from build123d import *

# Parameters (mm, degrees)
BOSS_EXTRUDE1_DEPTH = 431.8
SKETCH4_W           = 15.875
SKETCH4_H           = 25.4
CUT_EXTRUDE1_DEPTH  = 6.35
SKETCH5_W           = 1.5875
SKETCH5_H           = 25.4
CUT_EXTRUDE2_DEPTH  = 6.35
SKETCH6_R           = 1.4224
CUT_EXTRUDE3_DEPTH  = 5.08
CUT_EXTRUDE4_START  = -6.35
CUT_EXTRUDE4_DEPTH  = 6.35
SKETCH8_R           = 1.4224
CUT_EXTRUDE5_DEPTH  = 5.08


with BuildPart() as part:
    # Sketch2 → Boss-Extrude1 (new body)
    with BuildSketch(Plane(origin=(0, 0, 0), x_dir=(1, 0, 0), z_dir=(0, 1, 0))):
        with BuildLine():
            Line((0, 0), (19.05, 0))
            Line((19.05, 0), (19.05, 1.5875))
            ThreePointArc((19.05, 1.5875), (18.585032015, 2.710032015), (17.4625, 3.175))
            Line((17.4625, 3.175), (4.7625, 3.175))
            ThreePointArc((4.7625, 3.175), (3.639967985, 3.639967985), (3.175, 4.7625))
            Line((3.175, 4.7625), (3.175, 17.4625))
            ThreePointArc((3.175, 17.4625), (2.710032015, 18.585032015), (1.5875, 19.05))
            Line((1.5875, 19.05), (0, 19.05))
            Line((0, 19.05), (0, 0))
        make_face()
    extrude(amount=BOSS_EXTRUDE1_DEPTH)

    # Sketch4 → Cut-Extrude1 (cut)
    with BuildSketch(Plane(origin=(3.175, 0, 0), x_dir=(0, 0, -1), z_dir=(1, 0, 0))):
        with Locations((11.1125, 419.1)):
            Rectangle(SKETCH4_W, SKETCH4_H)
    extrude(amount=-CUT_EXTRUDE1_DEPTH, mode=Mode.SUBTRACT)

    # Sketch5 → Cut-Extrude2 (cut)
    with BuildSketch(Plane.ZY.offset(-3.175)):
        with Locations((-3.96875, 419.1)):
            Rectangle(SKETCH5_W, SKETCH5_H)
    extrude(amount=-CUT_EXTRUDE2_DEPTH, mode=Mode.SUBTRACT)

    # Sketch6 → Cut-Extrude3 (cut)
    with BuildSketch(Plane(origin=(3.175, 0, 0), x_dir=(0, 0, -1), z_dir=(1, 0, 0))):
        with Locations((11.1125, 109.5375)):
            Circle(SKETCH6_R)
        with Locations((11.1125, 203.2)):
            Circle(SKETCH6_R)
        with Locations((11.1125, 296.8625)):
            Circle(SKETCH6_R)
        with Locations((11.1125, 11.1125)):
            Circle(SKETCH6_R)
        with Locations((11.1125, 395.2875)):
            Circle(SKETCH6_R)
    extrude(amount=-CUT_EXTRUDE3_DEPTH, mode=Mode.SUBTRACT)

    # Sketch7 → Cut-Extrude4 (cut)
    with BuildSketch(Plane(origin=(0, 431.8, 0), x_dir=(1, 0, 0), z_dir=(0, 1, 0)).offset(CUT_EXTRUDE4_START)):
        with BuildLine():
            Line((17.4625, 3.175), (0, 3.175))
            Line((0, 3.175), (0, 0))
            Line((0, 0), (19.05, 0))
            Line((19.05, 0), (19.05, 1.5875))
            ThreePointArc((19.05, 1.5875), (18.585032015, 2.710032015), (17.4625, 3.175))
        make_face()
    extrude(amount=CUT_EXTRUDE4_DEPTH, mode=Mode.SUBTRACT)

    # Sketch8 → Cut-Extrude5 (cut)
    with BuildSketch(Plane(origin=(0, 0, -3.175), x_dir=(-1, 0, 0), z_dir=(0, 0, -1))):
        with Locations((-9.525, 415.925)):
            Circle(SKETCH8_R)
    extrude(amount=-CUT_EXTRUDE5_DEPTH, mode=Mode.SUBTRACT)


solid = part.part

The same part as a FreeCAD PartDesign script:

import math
import FreeCAD as App
import Part
import Sketcher

V = App.Vector
Q = App.Units.Quantity

doc = App.newDocument("Part")
body = doc.addObject("PartDesign::Body", "Body")

# Sketch on XZ plane
sketch1 = doc.addObject("Sketcher::SketchObject", "Sketch")
body.addObject(sketch1)
sketch1.AttachmentSupport = (doc.XZ_Plane, [""])
sketch1.MapMode = "FlatFace"
sketch1.addGeometry([
    Part.LineSegment(V(0, 0, 0), V(19.1, 0, 0)),  # 0
    Part.LineSegment(V(19.1, 0, 0), V(19.1, -1.6, 0)),  # 1
    Part.ArcOfCircle(Part.Circle(V(17.5, -1.6, 0), V(0, 0, 1), 1.6), math.radians(-90), math.radians(0)),  # 2
    Part.LineSegment(V(17.5, -3.2, 0), V(4.8, -3.2, 0)),  # 3
    Part.ArcOfCircle(Part.Circle(V(4.8, -4.8, 0), V(0, 0, 1), 1.6), math.radians(90), math.radians(180)),  # 4
    Part.LineSegment(V(3.2, -4.8, 0), V(3.2, -17.5, 0)),  # 5
    Part.ArcOfCircle(Part.Circle(V(1.6, -17.5, 0), V(0, 0, 1), 1.6), math.radians(-90), math.radians(0)),  # 6
    Part.LineSegment(V(1.6, -19.1, 0), V(0, -19.1, 0)),  # 7
    Part.LineSegment(V(0, -19.1, 0), V(0, 0, 0)),  # 8
], False)
sketch1.addConstraint([
    Sketcher.Constraint("Coincident", 0, 2, 1, 1),
    Sketcher.Constraint("Tangent", 1, 2, 2, 2),
    Sketcher.Constraint("Tangent", 2, 1, 3, 1),
    Sketcher.Constraint("Tangent", 3, 2, 4, 1),
    Sketcher.Constraint("Tangent", 4, 2, 5, 1),
    Sketcher.Constraint("Tangent", 5, 2, 6, 2),
    Sketcher.Constraint("Tangent", 6, 1, 7, 1),
    Sketcher.Constraint("Coincident", 7, 2, 8, 1),
    Sketcher.Constraint("Coincident", 8, 2, 0, 1),
    Sketcher.Constraint("Horizontal", 0),
    Sketcher.Constraint("Vertical", 1),
    Sketcher.Constraint("Horizontal", 3),
    Sketcher.Constraint("Vertical", 5),
    Sketcher.Constraint("Horizontal", 7),
    Sketcher.Constraint("Vertical", 8),
    Sketcher.Constraint("Coincident", 8, 2, -1, 1),
    Sketcher.Constraint("Equal", 2, 4),
    Sketcher.Constraint("Equal", 4, 6),
    Sketcher.Constraint("Equal", 7, 1),
    Sketcher.Constraint("Equal", 3, 5),
    Sketcher.Constraint("DistanceX", 3, 2, 3, 1, Q("0.5 in")),
    Sketcher.Constraint("Radius", 2, Q("0.0625 in")),
    Sketcher.Constraint("DistanceX", 0, 1, 0, 2, Q("0.75 in")),
])
pad1 = doc.addObject("PartDesign::Pad", "Pad")
body.addObject(pad1)
pad1.Profile = sketch1
pad1.Length = Q("17 in")
pad1.Reversed = True

# Sketch on YZ plane
sketch2 = doc.addObject("Sketcher::SketchObject", "Sketch001")
body.addObject(sketch2)
sketch2.AttachmentSupport = (doc.YZ_Plane, [""])
sketch2.MapMode = "FlatFace"
sketch2.AttachmentOffset = App.Placement(V(0, 0, 0.125 * 25.4), App.Rotation())
sketch2.addGeometry([
    Part.LineSegment(V(432, -3, 0), V(406, -3, 0)),
    Part.LineSegment(V(406, -3, 0), V(406, -19, 0)),
    Part.LineSegment(V(406, -19, 0), V(432, -19, 0)),
    Part.LineSegment(V(432, -19, 0), V(432, -3, 0)),
], False)
sketch2.addConstraint([
    Sketcher.Constraint("Coincident", 0, 2, 1, 1),
    Sketcher.Constraint("Coincident", 1, 2, 2, 1),
    Sketcher.Constraint("Coincident", 2, 2, 3, 1),
    Sketcher.Constraint("Coincident", 3, 2, 0, 1),
    Sketcher.Constraint("Horizontal", 0),
    Sketcher.Constraint("Vertical", 1),
    Sketcher.Constraint("Horizontal", 2),
    Sketcher.Constraint("Vertical", 3),
    Sketcher.Constraint("DistanceX", 0, 2, 0, 1, Q("1 in")),
    Sketcher.Constraint("DistanceX", -1, 1, 0, 2, Q("16 in")),
    Sketcher.Constraint("DistanceY", 1, 2, 1, 1, Q("0.625 in")),
    Sketcher.Constraint("DistanceY", 1, 2, -1, 1, Q("0.75 in")),
])
pocket1 = doc.addObject("PartDesign::Pocket", "Pocket")
body.addObject(pocket1)
pocket1.Profile = sketch2
pocket1.Length = Q("0.25 in")

# Sketch on YZ plane
sketch3 = doc.addObject("Sketcher::SketchObject", "Sketch002")
body.addObject(sketch3)
sketch3.AttachmentSupport = (doc.YZ_Plane, [""])
sketch3.MapMode = "FlatFace"
sketch3.AttachmentOffset = App.Placement(V(0, 0, 0.125 * 25.4), App.Rotation())
sketch3.addGeometry([
    Part.LineSegment(V(431.8, -4.8, 0), V(406.4, -4.8, 0)),
    Part.LineSegment(V(406.4, -4.8, 0), V(406.4, -3.2, 0)),
    Part.LineSegment(V(406.4, -3.2, 0), V(431.8, -3.2, 0)),
    Part.LineSegment(V(431.8, -3.2, 0), V(431.8, -4.8, 0)),
], False)
sketch3.addConstraint([
    Sketcher.Constraint("Coincident", 0, 2, 1, 1),
    Sketcher.Constraint("Coincident", 1, 2, 2, 1),
    Sketcher.Constraint("Coincident", 2, 2, 3, 1),
    Sketcher.Constraint("Coincident", 3, 2, 0, 1),
    Sketcher.Constraint("Horizontal", 0),
    Sketcher.Constraint("Vertical", 1),
    Sketcher.Constraint("Horizontal", 2),
    Sketcher.Constraint("Vertical", 3),
    Sketcher.Constraint("DistanceX", 0, 2, 0, 1, Q("1 in")),
    Sketcher.Constraint("DistanceX", -1, 1, 0, 2, Q("16 in")),
    Sketcher.Constraint("DistanceY", 1, 1, 1, 2, Q("0.0625 in")),
    Sketcher.Constraint("DistanceY", 0, 2, -1, 1, Q("0.1875 in")),
])
pocket2 = doc.addObject("PartDesign::Pocket", "Pocket001")
body.addObject(pocket2)
pocket2.Profile = sketch3
pocket2.Length = Q("0.25 in")
pocket2.Reversed = True

# Sketch on YZ plane
sketch4 = doc.addObject("Sketcher::SketchObject", "Sketch003")
body.addObject(sketch4)
sketch4.AttachmentSupport = (doc.YZ_Plane, [""])
sketch4.MapMode = "FlatFace"
sketch4.AttachmentOffset = App.Placement(V(0, 0, 0.125 * 25.4), App.Rotation())
sketch4.addGeometry([
    Part.Circle(V(109.5, -11.1, 0), V(0, 0, 1), 1.4),  # 0
    Part.Circle(V(203.2, -11.1, 0), V(0, 0, 1), 1.4),  # 1
    Part.Circle(V(296.9, -11.1, 0), V(0, 0, 1), 1.4),  # 2
    Part.Circle(V(11.1, -11.1, 0), V(0, 0, 1), 1.4),  # 3
    Part.Circle(V(395.3, -11.1, 0), V(0, 0, 1), 1.4),  # 4
], False)
sketch4.addConstraint([
    Sketcher.Constraint("Equal", 0, 1),
    Sketcher.Constraint("Equal", 1, 2),
    Sketcher.Constraint("Equal", 2, 3),
    Sketcher.Constraint("Equal", 3, 4),
    Sketcher.Constraint("Horizontal", 0, 3, 1, 3),
    Sketcher.Constraint("Horizontal", 1, 3, 2, 3),
    Sketcher.Constraint("Horizontal", 2, 3, 3, 3),
    Sketcher.Constraint("Horizontal", 3, 3, 4, 3),
    Sketcher.Constraint("Diameter", 0, Q("0.112 in")),
    Sketcher.Constraint("DistanceX", -1, 1, 1, 3, Q("8 in")),
    Sketcher.Constraint("DistanceX", 3, 3, 2, 3, Q("11.25 in")),
    Sketcher.Constraint("DistanceX", 0, 3, 4, 3, Q("11.25 in")),
    Sketcher.Constraint("DistanceX", -1, 1, 0, 3, Q("4.3125 in")),
    Sketcher.Constraint("DistanceY", 0, 3, -1, 1, Q("0.4375 in")),
    Sketcher.Constraint("DistanceX", -1, 1, 2, 3, Q("11.6875 in")),
])
pocket3 = doc.addObject("PartDesign::Pocket", "Pocket002")
body.addObject(pocket3)
pocket3.Profile = sketch4
pocket3.Length = Q("0.2 in")

# Sketch on XZ plane
sketch5 = doc.addObject("Sketcher::SketchObject", "Sketch004")
body.addObject(sketch5)
sketch5.AttachmentSupport = (doc.XZ_Plane, [""])
sketch5.MapMode = "FlatFace"
sketch5.AttachmentOffset = App.Placement(V(0, 0, -16.75 * 25.4), App.Rotation())
sketch5.addGeometry([
    Part.LineSegment(V(17.5, -3.2, 0), V(0, -3.2, 0)),  # 0
    Part.LineSegment(V(0, -3.2, 0), V(0, 0, 0)),  # 1
    Part.LineSegment(V(0, 0, 0), V(19.1, 0, 0)),  # 2
    Part.LineSegment(V(19.1, 0, 0), V(19.1, -1.6, 0)),  # 3
    Part.ArcOfCircle(Part.Circle(V(17.5, -1.6, 0), V(0, 0, 1), 1.6), math.radians(-90), math.radians(0)),  # 4
], False)
sketch5.addConstraint([
    Sketcher.Constraint("Coincident", 0, 2, 1, 1),
    Sketcher.Constraint("Coincident", 1, 2, 2, 1),
    Sketcher.Constraint("Coincident", 2, 2, 3, 1),
    Sketcher.Constraint("Tangent", 3, 2, 4, 2),
    Sketcher.Constraint("Tangent", 4, 1, 0, 1),
    Sketcher.Constraint("Horizontal", 0),
    Sketcher.Constraint("Vertical", 1),
    Sketcher.Constraint("Horizontal", 2),
    Sketcher.Constraint("Vertical", 3),
    Sketcher.Constraint("Coincident", 1, 2, -1, 1),
    Sketcher.Constraint("Radius", 4, Q("0.0625 in")),
    Sketcher.Constraint("DistanceX", 2, 1, 2, 2, Q("0.75 in")),
    Sketcher.Constraint("DistanceY", 1, 1, 1, 2, Q("0.125 in")),
])
pocket4 = doc.addObject("PartDesign::Pocket", "Pocket003")
body.addObject(pocket4)
pocket4.Profile = sketch5
pocket4.Length = Q("0.25 in")

# Sketch on XY plane
sketch6 = doc.addObject("Sketcher::SketchObject", "Sketch005")
body.addObject(sketch6)
sketch6.AttachmentSupport = (doc.XY_Plane, [""])
sketch6.MapMode = "FlatFace"
sketch6.AttachmentOffset = App.Placement(V(0, 0, -0.125 * 25.4), App.Rotation())
sketch6.addGeometry(Part.Circle(V(9.5, 415.9, 0), V(0, 0, 1), 1.4), False)
sketch6.addConstraint([
    Sketcher.Constraint("Diameter", 0, Q("0.112 in")),
    Sketcher.Constraint("DistanceX", -1, 1, 0, 3, Q("0.375 in")),
    Sketcher.Constraint("DistanceY", -1, 1, 0, 3, Q("16.375 in")),
])
pocket5 = doc.addObject("PartDesign::Pocket", "Pocket004")
body.addObject(pocket5)
pocket5.Profile = sketch6
pocket5.Length = Q("0.2 in")
pocket5.Reversed = True

doc.recompute()
